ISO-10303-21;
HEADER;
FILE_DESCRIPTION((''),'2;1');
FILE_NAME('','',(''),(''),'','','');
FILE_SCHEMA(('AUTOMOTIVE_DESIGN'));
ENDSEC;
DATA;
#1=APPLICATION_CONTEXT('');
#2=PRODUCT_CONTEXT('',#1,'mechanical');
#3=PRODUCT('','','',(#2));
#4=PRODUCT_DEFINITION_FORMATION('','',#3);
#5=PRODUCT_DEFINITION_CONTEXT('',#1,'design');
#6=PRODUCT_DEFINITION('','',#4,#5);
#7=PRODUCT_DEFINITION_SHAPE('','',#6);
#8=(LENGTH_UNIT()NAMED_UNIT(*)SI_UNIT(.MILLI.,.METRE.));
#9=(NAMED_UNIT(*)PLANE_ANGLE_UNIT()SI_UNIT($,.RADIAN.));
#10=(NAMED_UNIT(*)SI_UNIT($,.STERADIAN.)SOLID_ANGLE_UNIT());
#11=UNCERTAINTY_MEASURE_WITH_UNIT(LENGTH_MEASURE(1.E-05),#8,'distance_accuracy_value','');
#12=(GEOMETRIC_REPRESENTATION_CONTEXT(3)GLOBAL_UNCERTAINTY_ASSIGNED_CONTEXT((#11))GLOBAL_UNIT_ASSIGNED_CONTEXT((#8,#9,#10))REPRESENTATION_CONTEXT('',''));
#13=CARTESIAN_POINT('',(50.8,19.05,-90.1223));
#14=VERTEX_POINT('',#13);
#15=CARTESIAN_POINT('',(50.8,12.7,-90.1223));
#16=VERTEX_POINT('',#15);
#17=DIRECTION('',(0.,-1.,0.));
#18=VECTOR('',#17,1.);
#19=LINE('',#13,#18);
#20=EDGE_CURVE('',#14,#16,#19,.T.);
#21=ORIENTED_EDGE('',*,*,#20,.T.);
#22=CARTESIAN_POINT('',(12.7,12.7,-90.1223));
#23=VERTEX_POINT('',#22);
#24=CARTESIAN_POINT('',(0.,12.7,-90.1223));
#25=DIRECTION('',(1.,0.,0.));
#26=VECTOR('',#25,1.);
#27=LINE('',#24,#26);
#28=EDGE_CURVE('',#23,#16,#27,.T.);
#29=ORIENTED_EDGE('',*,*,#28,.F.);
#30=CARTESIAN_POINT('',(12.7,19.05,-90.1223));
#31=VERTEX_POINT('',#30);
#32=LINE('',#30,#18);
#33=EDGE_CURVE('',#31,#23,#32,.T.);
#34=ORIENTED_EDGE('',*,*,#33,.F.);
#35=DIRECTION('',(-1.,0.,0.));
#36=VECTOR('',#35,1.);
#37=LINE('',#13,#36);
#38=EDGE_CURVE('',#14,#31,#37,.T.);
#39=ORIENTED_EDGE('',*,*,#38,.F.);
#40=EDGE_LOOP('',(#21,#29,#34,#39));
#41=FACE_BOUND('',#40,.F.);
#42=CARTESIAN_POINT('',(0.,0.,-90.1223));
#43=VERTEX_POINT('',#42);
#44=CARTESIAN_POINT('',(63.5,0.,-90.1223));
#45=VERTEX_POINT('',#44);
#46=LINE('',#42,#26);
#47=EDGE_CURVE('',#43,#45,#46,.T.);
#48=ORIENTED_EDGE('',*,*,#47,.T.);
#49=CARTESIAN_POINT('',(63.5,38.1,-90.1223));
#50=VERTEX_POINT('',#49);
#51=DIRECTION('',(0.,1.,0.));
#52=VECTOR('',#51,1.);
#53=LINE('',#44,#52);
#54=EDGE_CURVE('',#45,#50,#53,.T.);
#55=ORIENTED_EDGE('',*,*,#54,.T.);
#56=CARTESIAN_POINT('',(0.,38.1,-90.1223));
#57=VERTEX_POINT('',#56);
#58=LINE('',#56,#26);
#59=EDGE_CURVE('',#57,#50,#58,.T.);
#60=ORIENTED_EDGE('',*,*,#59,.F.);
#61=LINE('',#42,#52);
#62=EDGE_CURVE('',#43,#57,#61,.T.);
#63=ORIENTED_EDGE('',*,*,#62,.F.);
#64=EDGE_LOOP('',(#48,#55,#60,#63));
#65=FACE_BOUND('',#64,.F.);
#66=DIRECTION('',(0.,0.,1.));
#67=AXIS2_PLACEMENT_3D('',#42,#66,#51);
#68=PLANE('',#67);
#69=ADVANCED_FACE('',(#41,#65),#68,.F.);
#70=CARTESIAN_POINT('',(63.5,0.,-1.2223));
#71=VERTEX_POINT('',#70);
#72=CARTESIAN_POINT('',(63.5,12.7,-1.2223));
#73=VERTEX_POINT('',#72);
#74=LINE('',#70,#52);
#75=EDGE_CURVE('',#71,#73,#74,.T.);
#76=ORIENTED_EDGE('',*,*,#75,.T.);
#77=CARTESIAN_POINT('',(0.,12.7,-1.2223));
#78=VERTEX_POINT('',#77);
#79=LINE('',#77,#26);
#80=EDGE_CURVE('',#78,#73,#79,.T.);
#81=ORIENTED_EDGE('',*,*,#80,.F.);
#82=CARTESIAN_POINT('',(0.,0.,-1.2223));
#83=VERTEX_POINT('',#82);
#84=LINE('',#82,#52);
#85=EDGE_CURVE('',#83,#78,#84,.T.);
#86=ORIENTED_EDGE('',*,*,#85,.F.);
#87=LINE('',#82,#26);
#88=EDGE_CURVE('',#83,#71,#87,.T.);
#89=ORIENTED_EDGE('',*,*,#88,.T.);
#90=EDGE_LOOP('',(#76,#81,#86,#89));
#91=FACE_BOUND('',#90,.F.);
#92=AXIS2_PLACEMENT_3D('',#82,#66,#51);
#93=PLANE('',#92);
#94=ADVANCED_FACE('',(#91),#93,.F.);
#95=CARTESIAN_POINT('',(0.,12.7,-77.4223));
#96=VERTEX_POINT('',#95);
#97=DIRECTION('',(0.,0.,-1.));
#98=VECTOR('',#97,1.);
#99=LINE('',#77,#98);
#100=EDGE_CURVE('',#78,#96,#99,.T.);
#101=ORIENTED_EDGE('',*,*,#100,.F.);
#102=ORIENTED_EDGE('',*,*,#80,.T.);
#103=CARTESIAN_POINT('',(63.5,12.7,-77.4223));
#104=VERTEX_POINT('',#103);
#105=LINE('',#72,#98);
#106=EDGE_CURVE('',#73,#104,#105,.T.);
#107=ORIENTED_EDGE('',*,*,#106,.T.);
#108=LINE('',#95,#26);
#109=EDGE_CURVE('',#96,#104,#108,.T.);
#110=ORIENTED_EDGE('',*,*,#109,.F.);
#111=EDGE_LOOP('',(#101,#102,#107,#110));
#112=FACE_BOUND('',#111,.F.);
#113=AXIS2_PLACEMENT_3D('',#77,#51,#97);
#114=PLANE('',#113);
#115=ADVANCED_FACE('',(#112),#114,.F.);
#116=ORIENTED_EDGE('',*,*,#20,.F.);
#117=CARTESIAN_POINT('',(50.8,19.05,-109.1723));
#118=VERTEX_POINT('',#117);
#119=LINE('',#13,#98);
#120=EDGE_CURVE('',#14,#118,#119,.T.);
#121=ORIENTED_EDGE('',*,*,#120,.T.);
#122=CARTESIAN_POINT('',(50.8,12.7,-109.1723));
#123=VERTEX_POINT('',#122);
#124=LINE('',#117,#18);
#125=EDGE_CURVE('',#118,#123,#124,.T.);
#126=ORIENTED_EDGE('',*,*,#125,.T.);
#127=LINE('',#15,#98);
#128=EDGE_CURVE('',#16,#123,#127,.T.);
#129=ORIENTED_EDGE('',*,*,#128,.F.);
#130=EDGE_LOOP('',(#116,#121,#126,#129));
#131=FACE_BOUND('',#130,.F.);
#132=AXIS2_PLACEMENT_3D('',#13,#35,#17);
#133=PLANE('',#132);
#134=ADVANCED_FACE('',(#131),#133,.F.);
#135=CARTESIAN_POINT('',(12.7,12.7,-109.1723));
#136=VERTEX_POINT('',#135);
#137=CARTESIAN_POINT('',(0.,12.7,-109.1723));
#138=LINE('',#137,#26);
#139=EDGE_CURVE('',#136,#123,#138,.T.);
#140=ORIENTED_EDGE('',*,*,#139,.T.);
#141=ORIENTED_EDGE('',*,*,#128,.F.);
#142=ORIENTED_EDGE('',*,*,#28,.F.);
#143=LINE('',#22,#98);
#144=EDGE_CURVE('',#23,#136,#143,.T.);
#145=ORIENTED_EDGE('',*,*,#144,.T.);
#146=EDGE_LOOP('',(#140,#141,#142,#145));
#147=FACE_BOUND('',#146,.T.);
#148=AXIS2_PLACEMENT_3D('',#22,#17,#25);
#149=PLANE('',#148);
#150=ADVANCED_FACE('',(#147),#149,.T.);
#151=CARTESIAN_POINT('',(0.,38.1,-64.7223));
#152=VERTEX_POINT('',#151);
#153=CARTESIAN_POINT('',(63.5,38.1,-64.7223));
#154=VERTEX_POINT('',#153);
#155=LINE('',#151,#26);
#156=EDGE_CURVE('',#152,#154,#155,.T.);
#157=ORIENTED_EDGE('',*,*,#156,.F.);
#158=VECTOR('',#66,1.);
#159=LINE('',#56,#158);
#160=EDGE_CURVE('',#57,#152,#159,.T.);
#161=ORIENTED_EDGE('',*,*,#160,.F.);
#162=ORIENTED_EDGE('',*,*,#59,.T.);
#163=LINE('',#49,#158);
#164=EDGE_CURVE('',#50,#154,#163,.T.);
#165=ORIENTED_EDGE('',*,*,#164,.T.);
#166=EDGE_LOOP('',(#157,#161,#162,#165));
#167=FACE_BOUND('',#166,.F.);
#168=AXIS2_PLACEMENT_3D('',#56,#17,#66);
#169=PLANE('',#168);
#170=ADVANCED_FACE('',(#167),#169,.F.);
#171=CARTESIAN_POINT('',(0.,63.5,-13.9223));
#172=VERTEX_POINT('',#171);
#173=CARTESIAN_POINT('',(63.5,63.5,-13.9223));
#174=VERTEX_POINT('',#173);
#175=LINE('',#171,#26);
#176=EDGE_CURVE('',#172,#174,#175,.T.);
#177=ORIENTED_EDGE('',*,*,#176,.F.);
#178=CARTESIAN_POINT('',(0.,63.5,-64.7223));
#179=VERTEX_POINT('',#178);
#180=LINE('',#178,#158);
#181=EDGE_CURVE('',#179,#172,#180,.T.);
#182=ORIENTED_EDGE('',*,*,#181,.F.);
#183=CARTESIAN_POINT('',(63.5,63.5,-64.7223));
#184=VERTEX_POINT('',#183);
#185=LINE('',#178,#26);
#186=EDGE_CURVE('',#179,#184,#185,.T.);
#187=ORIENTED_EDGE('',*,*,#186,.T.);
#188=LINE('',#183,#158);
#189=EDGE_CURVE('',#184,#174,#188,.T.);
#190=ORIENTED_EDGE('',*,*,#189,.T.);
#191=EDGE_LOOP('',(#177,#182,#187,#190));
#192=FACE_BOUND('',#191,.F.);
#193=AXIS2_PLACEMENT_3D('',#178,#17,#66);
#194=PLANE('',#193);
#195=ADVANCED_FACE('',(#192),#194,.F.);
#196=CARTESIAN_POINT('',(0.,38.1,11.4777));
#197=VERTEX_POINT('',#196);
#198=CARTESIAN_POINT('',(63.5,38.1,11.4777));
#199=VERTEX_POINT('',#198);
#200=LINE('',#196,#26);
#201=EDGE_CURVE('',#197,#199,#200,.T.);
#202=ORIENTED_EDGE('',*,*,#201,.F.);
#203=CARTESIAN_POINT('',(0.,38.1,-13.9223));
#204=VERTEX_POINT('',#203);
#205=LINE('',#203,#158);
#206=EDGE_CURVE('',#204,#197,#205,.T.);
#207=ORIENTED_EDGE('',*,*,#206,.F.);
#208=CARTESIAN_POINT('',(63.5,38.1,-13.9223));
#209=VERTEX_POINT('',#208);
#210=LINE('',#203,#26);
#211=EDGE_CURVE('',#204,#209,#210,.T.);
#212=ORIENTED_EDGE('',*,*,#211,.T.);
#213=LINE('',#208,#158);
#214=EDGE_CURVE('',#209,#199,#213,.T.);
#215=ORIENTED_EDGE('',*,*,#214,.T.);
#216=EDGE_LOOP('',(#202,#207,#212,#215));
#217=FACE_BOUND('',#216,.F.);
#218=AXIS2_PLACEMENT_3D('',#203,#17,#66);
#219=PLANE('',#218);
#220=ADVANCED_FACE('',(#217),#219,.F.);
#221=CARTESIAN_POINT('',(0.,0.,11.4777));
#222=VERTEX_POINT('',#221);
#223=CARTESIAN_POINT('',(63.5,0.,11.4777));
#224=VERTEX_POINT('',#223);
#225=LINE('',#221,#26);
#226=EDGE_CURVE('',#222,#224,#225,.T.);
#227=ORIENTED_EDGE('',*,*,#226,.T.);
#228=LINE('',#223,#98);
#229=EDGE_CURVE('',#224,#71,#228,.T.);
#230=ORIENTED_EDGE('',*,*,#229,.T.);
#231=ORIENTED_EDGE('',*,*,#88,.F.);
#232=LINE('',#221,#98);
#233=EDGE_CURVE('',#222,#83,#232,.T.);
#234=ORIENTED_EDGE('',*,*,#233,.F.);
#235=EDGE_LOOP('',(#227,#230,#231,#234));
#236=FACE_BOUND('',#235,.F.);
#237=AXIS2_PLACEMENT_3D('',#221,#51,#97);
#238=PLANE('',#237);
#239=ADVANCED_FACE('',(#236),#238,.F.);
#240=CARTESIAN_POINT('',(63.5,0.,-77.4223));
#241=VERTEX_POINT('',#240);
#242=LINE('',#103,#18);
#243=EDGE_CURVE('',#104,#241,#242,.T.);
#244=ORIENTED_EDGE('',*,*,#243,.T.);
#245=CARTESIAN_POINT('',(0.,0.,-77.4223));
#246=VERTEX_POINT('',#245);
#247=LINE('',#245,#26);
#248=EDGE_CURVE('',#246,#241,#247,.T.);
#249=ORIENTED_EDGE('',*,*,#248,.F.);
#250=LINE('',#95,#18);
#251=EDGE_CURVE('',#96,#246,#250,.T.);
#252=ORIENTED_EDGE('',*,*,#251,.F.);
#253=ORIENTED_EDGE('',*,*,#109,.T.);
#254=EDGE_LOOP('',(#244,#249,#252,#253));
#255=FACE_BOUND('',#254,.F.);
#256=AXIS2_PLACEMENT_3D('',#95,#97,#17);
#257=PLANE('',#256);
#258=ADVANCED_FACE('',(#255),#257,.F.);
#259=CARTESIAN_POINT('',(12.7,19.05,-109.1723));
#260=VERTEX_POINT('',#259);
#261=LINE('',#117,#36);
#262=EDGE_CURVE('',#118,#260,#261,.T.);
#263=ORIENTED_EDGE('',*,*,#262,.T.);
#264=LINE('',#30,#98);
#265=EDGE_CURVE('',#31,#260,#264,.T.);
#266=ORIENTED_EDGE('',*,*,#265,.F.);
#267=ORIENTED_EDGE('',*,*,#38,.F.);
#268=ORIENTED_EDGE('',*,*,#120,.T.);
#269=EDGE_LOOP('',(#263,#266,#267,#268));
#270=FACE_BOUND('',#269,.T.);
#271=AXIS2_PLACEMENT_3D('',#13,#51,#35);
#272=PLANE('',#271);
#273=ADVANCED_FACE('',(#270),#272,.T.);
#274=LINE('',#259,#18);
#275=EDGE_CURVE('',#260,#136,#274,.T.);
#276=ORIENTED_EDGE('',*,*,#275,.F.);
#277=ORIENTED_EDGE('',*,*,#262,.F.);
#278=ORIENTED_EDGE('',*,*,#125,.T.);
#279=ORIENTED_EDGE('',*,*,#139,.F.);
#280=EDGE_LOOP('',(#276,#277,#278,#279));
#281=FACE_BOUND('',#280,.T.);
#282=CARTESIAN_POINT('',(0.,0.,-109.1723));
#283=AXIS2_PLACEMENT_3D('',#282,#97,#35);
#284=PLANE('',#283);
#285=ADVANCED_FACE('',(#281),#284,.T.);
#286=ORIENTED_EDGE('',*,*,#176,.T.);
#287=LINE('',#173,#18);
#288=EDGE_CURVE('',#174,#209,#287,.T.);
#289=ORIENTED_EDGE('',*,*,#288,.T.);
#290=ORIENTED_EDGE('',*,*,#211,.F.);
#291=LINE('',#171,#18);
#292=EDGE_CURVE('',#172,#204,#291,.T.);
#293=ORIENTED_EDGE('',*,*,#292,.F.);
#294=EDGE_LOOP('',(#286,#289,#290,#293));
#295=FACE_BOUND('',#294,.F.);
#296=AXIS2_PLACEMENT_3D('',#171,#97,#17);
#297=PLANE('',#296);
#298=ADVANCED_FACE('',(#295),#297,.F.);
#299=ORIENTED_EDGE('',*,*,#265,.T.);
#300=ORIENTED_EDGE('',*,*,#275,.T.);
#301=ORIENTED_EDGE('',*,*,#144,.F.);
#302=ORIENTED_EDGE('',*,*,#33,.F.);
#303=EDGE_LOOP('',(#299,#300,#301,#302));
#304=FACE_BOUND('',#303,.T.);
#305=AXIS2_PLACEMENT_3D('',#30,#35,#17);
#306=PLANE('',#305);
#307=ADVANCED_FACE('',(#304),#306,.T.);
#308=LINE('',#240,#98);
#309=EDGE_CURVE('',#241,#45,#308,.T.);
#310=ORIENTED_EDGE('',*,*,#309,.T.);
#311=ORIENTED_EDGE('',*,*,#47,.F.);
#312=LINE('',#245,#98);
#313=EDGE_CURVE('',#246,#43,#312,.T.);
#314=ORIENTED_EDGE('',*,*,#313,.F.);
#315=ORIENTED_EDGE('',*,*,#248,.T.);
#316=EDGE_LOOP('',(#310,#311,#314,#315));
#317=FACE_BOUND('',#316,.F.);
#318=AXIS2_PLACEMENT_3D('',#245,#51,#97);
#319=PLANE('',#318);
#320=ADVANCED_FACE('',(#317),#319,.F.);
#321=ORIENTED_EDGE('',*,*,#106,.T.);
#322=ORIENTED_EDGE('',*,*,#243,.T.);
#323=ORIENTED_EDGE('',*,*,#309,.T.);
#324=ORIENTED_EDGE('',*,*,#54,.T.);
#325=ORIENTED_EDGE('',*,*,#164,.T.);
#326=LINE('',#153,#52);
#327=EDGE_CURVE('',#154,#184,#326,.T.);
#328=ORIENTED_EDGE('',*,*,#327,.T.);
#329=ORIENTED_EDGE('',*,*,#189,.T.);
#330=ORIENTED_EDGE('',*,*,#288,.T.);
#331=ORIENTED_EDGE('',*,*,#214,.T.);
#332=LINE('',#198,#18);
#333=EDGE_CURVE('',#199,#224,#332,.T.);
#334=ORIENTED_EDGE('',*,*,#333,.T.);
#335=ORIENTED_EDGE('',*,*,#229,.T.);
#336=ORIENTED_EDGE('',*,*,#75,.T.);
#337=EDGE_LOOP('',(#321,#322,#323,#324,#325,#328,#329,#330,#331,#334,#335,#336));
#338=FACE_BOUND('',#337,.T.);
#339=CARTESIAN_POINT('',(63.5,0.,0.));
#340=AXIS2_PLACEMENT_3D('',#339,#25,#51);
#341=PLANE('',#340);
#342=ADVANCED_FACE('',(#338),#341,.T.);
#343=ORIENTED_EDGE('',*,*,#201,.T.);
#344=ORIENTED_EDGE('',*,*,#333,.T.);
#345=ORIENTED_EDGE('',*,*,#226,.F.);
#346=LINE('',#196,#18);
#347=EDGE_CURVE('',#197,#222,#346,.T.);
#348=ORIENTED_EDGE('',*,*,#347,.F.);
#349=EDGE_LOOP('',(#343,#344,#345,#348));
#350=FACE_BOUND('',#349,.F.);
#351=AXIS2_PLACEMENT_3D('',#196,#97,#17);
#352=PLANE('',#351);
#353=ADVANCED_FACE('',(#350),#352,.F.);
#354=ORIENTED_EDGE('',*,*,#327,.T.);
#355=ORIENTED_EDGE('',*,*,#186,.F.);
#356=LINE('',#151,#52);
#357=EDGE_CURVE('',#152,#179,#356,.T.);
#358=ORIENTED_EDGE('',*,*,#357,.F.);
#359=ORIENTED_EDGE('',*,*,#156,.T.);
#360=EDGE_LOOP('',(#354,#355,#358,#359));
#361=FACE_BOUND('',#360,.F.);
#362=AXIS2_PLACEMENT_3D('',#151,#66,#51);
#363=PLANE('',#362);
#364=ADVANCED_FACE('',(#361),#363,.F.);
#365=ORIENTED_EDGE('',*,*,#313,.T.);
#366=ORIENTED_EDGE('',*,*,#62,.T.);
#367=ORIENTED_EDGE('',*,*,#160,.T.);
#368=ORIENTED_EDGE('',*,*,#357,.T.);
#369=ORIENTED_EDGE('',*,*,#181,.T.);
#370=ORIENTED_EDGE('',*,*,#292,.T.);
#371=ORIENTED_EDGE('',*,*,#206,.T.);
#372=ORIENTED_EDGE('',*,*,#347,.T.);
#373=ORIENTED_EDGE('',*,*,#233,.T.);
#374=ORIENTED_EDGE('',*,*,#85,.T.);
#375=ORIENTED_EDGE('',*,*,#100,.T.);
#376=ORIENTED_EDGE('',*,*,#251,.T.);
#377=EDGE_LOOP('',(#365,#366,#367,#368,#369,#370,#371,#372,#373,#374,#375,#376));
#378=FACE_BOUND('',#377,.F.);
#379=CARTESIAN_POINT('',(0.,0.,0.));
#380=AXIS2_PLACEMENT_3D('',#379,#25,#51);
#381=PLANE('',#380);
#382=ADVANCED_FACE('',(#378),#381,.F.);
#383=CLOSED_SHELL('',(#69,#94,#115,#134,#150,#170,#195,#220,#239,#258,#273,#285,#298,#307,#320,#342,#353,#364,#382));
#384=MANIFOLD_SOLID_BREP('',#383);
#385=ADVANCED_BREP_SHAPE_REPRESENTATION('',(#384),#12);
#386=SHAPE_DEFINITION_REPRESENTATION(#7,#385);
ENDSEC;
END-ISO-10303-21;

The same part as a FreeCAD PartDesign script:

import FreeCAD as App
import Part
import Sketcher
from FreeCAD import Vector
Q = App.Units.Quantity


def add_polygon(sketch, points):
    """Adds a closed chain of lines whose ends are joined by coincident constraints."""
    first, n = sketch.GeometryCount, len(points)
    for a, b in zip(points, points[1:] + points[:1]):
        sketch.addGeometry(Part.LineSegment(App.Vector(*a, 0), App.Vector(*b, 0)), False)
    for i in range(n):
        sketch.addConstraint(Sketcher.Constraint("Coincident", first + i, 2, first + (i + 1) % n, 1))

doc = App.newDocument("Part")
body = doc.addObject("PartDesign::Body", "Body")

# Sketch on YZ plane
sketch1 = body.newObject("Sketcher::SketchObject", "Sketch")
sketch1.AttachmentSupport = (doc.getObject("YZ_Plane"), [""])
sketch1.MapMode = "FlatFace"
add_polygon(sketch1, [(38, 11), (0, 11), (0, -1), (13, -1), (13, -77), (0, -77), (0, -90), (38, -90), (38, -65), (64, -65), (64, -14), (38, -14)])  # lines 0-11
sketch1.addConstraint([
    Sketcher.Constraint("Horizontal", 0),
    Sketcher.Constraint("Vertical", 1),
    Sketcher.Constraint("Horizontal", 2),
    Sketcher.Constraint("Vertical", 3),
    Sketcher.Constraint("Horizontal", 4),
    Sketcher.Constraint("Vertical", 5),
    Sketcher.Constraint("Horizontal", 6),
    Sketcher.Constraint("Vertical", 7),
    Sketcher.Constraint("Horizontal", 8),
    Sketcher.Constraint("Vertical", 9),
    Sketcher.Constraint("Horizontal", 10),
    Sketcher.Constraint("Vertical", 11),
    Sketcher.Constraint("PointOnObject", 0, 2, -2),
    Sketcher.Constraint("PointOnObject", 4, 2, -2),
    Sketcher.Constraint("Vertical", 7, 2, 10, 2),
    Sketcher.Constraint("Equal", 4, 1),
    Sketcher.Constraint("Equal", 1, 5),
    Sketcher.Constraint("Equal", 10, 7),
    Sketcher.Constraint("Equal", 7, 11),
    Sketcher.Constraint("DistanceX", 8, 1, 8, 2, Q("1 in")),
    Sketcher.Constraint("DistanceY", 3, 2, 3, 1, Q("3 in")),
    Sketcher.Constraint("DistanceY", 9, 1, 9, 2, Q("2 in")),
    Sketcher.Constraint("DistanceX", 0, 2, 0, 1, Q("1.5 in")),
    Sketcher.Constraint("DistanceY", -1, 1, 0, 2, 11.4777),
])
pad1 = body.newObject("PartDesign::Pad", "Pad")
pad1.Profile = sketch1
pad1.Length = Q("2.5 in")

# Sketch on XY plane
sketch2 = body.newObject("Sketcher::SketchObject", "Sketch001")
sketch2.AttachmentSupport = (doc.getObject("XY_Plane"), [""])
sketch2.MapMode = "FlatFace"
sketch2.AttachmentOffset = App.Placement(Vector(0, 0, -90.1223), App.Rotation())
add_polygon(sketch2, [(13, 19), (51, 19), (51, 13), (13, 13)])  # lines 0-3
sketch2.addConstraint([
    Sketcher.Constraint("Horizontal", 0),
    Sketcher.Constraint("Vertical", 1),
    Sketcher.Constraint("Horizontal", 2),
    Sketcher.Constraint("Vertical", 3),
    Sketcher.Constraint("DistanceX", 0, 1, 0, 2, Q("1.5 in")),
    Sketcher.Constraint("DistanceY", 1, 2, 1, 1, Q("0.25 in")),
    Sketcher.Constraint("DistanceY", -1, 1, 1, 2, Q("0.5 in")),
    Sketcher.Constraint("DistanceX", -1, 1, 2, 2, Q("0.5 in")),
])
pad2 = body.newObject("PartDesign::Pad", "Pad001")
pad2.Profile = sketch2
pad2.Length = Q("0.75 in")
pad2.Reversed = True

doc.recompute()
